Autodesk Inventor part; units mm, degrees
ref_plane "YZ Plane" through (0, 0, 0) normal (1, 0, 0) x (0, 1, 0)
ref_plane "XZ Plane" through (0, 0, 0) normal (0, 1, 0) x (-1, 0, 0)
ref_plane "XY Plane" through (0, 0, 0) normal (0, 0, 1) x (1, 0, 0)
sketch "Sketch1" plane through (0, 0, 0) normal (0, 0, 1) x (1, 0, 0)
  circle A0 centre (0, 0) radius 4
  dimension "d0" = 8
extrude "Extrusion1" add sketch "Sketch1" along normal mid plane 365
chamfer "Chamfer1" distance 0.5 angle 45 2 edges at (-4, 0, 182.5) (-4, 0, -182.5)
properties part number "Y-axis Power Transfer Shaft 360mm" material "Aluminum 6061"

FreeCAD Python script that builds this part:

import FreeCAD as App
import Part
import Sketcher

V = App.Vector
Q = App.Units.Quantity


def edges_at(feature, points):
    """Names of the edges that pass closest to the given points."""
    edges = feature.Shape.Edges
    near = lambda p: min(range(len(edges)), key=lambda i: edges[i].distToShape(Part.Vertex(*p))[0])
    return sorted({f"Edge{near(p) + 1}" for p in points})

doc = App.newDocument("Part")
params = doc.addObject("Spreadsheet::Sheet", "Params")
for row, (alias, value) in enumerate([
    ("sketch1_diameter", "8 mm"),
    ("pad1_length", "365 mm"),
    ("chamfer_size", "0.5 mm"),
], start=1):
    params.set(f"A{row}", alias)
    params.set(f"B{row}", "=" + value)
    params.setAlias(f"B{row}", alias)

body = doc.addObject("PartDesign::Body", "Body")

sketch1 = body.newObject("Sketcher::SketchObject", "Sketch")
sketch1.AttachmentSupport = (doc.getObject("XY_Plane"), [""])
sketch1.MapMode = "FlatFace"
sketch1.addGeometry(Part.Circle(V(0, 0, 0), V(0, 0, 1), 4), False)
sketch1.addConstraint(Sketcher.Constraint("Coincident", 0, 3, -1, 1))
sketch1.addConstraint(Sketcher.Constraint("Diameter", 0, Q("8 mm")))
sketch1.setExpression("Constraints[1]", "Params.sketch1_diameter")
pad1 = body.newObject("PartDesign::Pad", "Pad")
pad1.Profile = sketch1
pad1.setExpression("Length", "Params.pad1_length")
pad1.Midplane = True
doc.recompute()

chamfer = body.newObject("PartDesign::Chamfer", "Chamfer")
chamfer.Base = (pad1, edges_at(pad1, [(-4, 0, 182.5), (-4, 0, -182.5)]))
chamfer.setExpression("Size", "Params.chamfer_size")

doc.recompute()
